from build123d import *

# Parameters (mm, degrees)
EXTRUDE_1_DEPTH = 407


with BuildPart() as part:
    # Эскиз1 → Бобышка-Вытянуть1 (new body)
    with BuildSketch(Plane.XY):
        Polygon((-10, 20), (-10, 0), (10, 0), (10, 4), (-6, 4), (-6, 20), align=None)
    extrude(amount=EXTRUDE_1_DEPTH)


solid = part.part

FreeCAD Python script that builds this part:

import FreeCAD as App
import Part
import Sketcher

V = App.Vector
Q = App.Units.Quantity

doc = App.newDocument("Part")
params = doc.addObject("Spreadsheet::Sheet", "Params")
for row, (alias, value) in enumerate([
    ("sketch1_width", "20 mm"),
    ("sketch1_width2", "16 mm"),
    ("pad1_length", "407 mm"),
], start=1):
    params.set(f"A{row}", alias)
    params.set(f"B{row}", "=" + value)
    params.setAlias(f"B{row}", alias)

body = doc.addObject("PartDesign::Body", "Body")

# Sketch on XY plane
sketch1 = body.newObject("Sketcher::SketchObject", "Sketch")
sketch1.AttachmentSupport = (doc.getObject("XY_Plane"), [""])
sketch1.MapMode = "FlatFace"
sketch1.addGeometry([
    Part.LineSegment(V(-10, 20, 0), V(-10, 0, 0)),  # 0
    Part.LineSegment(V(-10, 0, 0), V(10, 0, 0)),  # 1
    Part.LineSegment(V(10, 0, 0), V(10, 4, 0)),  # 2
    Part.LineSegment(V(10, 4, 0), V(-6, 4, 0)),  # 3
    Part.LineSegment(V(-6, 4, 0), V(-6, 20, 0)),  # 4
    Part.LineSegment(V(-6, 20, 0), V(-10, 20, 0)),  # 5
], False)
sketch1.addConstraint([
    Sketcher.Constraint("Coincident", 0, 2, 1, 1),
    Sketcher.Constraint("Coincident", 1, 2, 2, 1),
    Sketcher.Constraint("Coincident", 2, 2, 3, 1),
    Sketcher.Constraint("Coincident", 3, 2, 4, 1),
    Sketcher.Constraint("Coincident", 4, 2, 5, 1),
    Sketcher.Constraint("Coincident", 5, 2, 0, 1),
    Sketcher.Constraint("Vertical", 0),
    Sketcher.Constraint("Horizontal", 1),
    Sketcher.Constraint("Vertical", 2),
    Sketcher.Constraint("Horizontal", 3),
    Sketcher.Constraint("Vertical", 4),
    Sketcher.Constraint("Horizontal", 5),
    Sketcher.Constraint("Symmetric", 0, 2, 1, 2, -1, 1),
    Sketcher.Constraint("Equal", 1, 0),
    Sketcher.Constraint("Equal", 5, 2),
    Sketcher.Constraint("DistanceX", 1, 1, 1, 2, Q("20 mm")),
    Sketcher.Constraint("DistanceX", 3, 2, 3, 1, Q("16 mm")),
])
sketch1.setExpression("Constraints[15]", "Params.sketch1_width")
sketch1.setExpression("Constraints[16]", "Params.sketch1_width2")
pad1 = body.newObject("PartDesign::Pad", "Pad")
pad1.Profile = sketch1
pad1.setExpression("Length", "Params.pad1_length")

doc.recompute()
